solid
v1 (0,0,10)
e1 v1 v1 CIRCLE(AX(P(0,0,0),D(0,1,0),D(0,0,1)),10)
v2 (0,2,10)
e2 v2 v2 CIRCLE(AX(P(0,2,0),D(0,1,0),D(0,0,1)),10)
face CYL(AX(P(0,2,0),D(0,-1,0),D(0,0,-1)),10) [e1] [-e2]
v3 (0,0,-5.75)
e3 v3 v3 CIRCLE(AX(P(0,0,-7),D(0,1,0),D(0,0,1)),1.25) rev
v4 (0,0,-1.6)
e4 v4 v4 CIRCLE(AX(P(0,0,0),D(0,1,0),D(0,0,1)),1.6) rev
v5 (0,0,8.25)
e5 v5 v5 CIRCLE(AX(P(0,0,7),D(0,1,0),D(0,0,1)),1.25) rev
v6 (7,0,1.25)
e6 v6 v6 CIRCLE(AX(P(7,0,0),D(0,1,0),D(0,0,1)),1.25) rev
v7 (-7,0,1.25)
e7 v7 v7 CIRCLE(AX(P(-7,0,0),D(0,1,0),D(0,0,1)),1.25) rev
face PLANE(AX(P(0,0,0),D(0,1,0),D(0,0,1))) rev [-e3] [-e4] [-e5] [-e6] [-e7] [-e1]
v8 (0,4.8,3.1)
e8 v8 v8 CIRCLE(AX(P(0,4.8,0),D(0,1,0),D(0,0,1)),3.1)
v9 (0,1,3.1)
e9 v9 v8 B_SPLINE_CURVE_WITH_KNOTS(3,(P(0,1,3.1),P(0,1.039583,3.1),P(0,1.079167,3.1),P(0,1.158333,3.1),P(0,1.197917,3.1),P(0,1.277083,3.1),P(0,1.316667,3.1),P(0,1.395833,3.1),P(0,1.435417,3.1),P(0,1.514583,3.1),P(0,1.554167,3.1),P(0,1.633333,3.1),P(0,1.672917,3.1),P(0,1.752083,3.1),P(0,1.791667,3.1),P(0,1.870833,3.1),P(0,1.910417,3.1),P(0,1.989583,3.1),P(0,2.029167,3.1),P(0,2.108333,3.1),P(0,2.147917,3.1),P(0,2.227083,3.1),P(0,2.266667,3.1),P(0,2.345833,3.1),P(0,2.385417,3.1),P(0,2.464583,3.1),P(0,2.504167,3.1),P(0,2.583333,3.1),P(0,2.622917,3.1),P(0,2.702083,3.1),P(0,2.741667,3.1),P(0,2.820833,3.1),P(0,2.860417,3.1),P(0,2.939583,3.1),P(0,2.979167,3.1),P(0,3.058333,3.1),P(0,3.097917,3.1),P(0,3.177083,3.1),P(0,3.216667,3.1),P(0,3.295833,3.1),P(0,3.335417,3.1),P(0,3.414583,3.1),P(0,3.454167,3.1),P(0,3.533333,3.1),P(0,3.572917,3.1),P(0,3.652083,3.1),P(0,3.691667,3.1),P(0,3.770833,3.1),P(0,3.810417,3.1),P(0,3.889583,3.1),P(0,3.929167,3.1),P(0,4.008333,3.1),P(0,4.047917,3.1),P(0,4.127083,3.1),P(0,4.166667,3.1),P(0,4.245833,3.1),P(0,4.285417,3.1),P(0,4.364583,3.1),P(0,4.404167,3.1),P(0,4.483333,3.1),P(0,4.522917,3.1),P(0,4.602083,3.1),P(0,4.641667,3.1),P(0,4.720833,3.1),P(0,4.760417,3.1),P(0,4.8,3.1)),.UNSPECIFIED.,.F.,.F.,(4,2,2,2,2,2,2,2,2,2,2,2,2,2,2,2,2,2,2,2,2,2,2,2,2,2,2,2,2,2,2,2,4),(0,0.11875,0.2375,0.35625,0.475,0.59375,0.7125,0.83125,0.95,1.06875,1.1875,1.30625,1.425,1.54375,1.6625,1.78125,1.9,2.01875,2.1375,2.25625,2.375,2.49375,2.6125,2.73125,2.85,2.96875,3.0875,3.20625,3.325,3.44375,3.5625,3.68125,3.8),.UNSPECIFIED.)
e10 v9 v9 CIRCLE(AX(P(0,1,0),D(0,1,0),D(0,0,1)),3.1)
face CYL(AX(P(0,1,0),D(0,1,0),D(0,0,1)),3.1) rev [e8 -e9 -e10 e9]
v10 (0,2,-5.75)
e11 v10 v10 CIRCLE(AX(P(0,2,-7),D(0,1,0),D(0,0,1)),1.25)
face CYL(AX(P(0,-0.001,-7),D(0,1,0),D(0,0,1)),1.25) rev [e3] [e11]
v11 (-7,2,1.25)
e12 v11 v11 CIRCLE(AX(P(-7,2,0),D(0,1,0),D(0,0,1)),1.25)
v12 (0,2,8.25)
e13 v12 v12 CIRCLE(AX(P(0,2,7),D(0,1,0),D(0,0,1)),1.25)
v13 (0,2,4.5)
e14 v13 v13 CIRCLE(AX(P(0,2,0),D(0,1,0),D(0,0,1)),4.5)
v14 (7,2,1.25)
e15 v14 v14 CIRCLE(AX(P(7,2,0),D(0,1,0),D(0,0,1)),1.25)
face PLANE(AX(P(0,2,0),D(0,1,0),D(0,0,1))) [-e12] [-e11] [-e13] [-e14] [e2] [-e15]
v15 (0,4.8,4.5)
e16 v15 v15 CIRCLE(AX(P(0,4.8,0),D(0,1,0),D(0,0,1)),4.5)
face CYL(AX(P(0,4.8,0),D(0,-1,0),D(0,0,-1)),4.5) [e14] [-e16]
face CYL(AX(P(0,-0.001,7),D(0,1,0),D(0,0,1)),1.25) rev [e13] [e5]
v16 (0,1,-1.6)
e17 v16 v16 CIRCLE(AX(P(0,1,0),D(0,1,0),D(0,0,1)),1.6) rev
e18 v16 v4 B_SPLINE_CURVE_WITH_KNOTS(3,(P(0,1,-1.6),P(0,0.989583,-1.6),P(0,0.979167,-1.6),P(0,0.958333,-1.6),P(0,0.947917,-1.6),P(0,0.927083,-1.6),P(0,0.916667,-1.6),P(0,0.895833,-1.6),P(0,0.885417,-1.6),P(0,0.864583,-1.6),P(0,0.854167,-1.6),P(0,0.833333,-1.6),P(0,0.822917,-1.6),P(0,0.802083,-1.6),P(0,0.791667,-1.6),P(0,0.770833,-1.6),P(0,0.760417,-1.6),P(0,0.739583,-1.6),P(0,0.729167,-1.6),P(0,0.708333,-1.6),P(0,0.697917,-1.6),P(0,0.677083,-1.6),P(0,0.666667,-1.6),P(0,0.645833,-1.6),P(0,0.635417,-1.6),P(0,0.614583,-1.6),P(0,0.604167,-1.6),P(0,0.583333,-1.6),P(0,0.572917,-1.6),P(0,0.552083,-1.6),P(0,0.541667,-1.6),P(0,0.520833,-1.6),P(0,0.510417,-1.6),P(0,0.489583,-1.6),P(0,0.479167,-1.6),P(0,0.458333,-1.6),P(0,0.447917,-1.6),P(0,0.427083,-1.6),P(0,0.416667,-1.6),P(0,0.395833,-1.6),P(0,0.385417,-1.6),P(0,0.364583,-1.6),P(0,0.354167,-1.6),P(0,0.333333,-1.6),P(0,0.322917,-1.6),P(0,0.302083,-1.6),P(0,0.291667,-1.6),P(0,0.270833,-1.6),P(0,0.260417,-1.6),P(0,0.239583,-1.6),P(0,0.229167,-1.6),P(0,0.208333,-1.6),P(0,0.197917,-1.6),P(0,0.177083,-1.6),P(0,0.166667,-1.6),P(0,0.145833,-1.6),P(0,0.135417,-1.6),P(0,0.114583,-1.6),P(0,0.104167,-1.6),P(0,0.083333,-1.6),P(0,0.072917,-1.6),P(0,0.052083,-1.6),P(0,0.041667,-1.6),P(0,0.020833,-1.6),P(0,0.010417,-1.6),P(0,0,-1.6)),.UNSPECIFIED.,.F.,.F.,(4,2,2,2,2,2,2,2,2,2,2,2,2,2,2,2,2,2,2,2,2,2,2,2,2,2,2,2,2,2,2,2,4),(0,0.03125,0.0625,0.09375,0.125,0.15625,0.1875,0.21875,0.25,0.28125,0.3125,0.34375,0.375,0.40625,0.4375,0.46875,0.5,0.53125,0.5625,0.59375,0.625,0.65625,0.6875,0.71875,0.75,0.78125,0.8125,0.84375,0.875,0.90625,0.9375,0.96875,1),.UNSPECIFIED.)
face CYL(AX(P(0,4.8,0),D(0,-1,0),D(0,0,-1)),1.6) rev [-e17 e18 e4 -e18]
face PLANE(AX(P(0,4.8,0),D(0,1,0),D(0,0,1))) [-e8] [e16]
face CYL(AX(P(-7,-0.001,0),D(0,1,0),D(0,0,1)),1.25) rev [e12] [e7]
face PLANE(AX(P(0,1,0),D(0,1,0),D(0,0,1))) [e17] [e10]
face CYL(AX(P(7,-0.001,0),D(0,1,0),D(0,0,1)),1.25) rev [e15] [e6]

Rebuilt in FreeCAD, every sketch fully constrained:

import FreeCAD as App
import Part
import Sketcher
from FreeCAD import Vector

doc = App.newDocument("Part")
params = doc.addObject("Spreadsheet::Sheet", "Params")
for row, (alias, value) in enumerate([
    ("sketch1_diameter", "20 mm"),
    ("pad1_length", "2 mm"),
    ("sketch2_diameter", "9 mm"),
    ("pad2_length", "2.8 mm"),
    ("sketch3_diameter", "6.2 mm"),
    ("pocket1_length", "3.8 mm"),
    ("sketch4_diameter", "3.2 mm"),
    ("sketch5_diameter", "3.2 mm"),
    ("pocket3_length", "15.64377 mm"),
    ("sketch6_diameter", "2.5 mm"),
    ("sketch7_diameter", "2.5 mm"),
    ("sketch8_diameter", "2.5 mm"),
    ("sketch9_diameter", "2.5 mm"),
], start=1):
    params.set(f"A{row}", alias)
    params.set(f"B{row}", "=" + value)
    params.setAlias(f"B{row}", alias)

body = doc.addObject("PartDesign::Body", "Body")

# Sketch on XZ plane
sketch1 = doc.addObject("Sketcher::SketchObject", "Sketch")
body.addObject(sketch1)
sketch1.AttachmentSupport = (doc.XZ_Plane, [""])
sketch1.MapMode = "FlatFace"
sketch1.addGeometry(Part.Circle(Vector(0, 0, 0), Vector(0, 0, 1), 10), False)
sketch1.addConstraint(Sketcher.Constraint("Coincident", 0, 3, -1, 1))
sketch1.addConstraint(Sketcher.Constraint("Diameter", 0, 20.0))
sketch1.setExpression("Constraints[1]", "Params.sketch1_diameter")
pad1 = doc.addObject("PartDesign::Pad", "Pad")
body.addObject(pad1)
pad1.Profile = sketch1
pad1.setExpression("Length", "Params.pad1_length")
pad1.Reversed = True

# Sketch on XZ plane
sketch2 = doc.addObject("Sketcher::SketchObject", "Sketch001")
body.addObject(sketch2)
sketch2.AttachmentSupport = (doc.XZ_Plane, [""])
sketch2.MapMode = "FlatFace"
sketch2.AttachmentOffset = App.Placement(Vector(0, 0, -2), App.Rotation())
sketch2.addGeometry(Part.Circle(Vector(0, 0, 0), Vector(0, 0, 1), 4.5), False)
sketch2.addConstraint(Sketcher.Constraint("Coincident", 0, 3, -1, 1))
sketch2.addConstraint(Sketcher.Constraint("Diameter", 0, 9.0))
sketch2.setExpression("Constraints[1]", "Params.sketch2_diameter")
pad2 = doc.addObject("PartDesign::Pad", "Pad001")
body.addObject(pad2)
pad2.Profile = sketch2
pad2.setExpression("Length", "Params.pad2_length")
pad2.Reversed = True

# Sketch on XZ plane
sketch3 = doc.addObject("Sketcher::SketchObject", "Sketch002")
body.addObject(sketch3)
sketch3.AttachmentSupport = (doc.XZ_Plane, [""])
sketch3.MapMode = "FlatFace"
sketch3.AttachmentOffset = App.Placement(Vector(0, 0, -4.8), App.Rotation())
sketch3.addGeometry(Part.Circle(Vector(0, 0, 0), Vector(0, 0, 1), 3.1), False)
sketch3.addConstraint(Sketcher.Constraint("Coincident", 0, 3, -1, 1))
sketch3.addConstraint(Sketcher.Constraint("Diameter", 0, 6.2))
sketch3.setExpression("Constraints[1]", "Params.sketch3_diameter")
pocket1 = doc.addObject("PartDesign::Pocket", "Pocket")
body.addObject(pocket1)
pocket1.Profile = sketch3
pocket1.setExpression("Length", "Params.pocket1_length")
pocket1.Reversed = True

# Sketch on XZ plane
sketch4 = doc.addObject("Sketcher::SketchObject", "Sketch003")
body.addObject(sketch4)
sketch4.AttachmentSupport = (doc.XZ_Plane, [""])
sketch4.MapMode = "FlatFace"
sketch4.AttachmentOffset = App.Placement(Vector(0, 0, -1), App.Rotation())
sketch4.addGeometry(Part.Circle(Vector(0, 0, 0), Vector(0, 0, 1), 1.6), False)
sketch4.addConstraint(Sketcher.Constraint("Coincident", 0, 3, -1, 1))
sketch4.addConstraint(Sketcher.Constraint("Diameter", 0, 3.2))
sketch4.setExpression("Constraints[1]", "Params.sketch4_diameter")
pocket2 = doc.addObject("PartDesign::Pocket", "Pocket001")
body.addObject(pocket2)
pocket2.Profile = sketch4
pocket2.Type = "UpToFirst"
pocket2.Reversed = True

# Sketch on XZ plane
sketch5 = doc.addObject("Sketcher::SketchObject", "Sketch004")
body.addObject(sketch5)
sketch5.AttachmentSupport = (doc.XZ_Plane, [""])
sketch5.MapMode = "FlatFace"
sketch5.AttachmentOffset = App.Placement(Vector(0, 0, -1), App.Rotation())
sketch5.addGeometry(Part.Circle(Vector(0, 0, 0), Vector(0, 0, 1), 1.6), False)
sketch5.addConstraint(Sketcher.Constraint("Coincident", 0, 3, -1, 1))
sketch5.addConstraint(Sketcher.Constraint("Diameter", 0, 3.2))
sketch5.setExpression("Constraints[1]", "Params.sketch5_diameter")
pocket3 = doc.addObject("PartDesign::Pocket", "Pocket002")
body.addObject(pocket3)
pocket3.Profile = sketch5
pocket3.setExpression("Length", "Params.pocket3_length")

# Sketch on XZ plane
sketch6 = doc.addObject("Sketcher::SketchObject", "Sketch005")
body.addObject(sketch6)
sketch6.AttachmentSupport = (doc.XZ_Plane, [""])
sketch6.MapMode = "FlatFace"
sketch6.AttachmentOffset = App.Placement(Vector(0, 0, -2), App.Rotation())
sketch6.addGeometry(Part.Circle(Vector(-7, 0, 0), Vector(0, 0, 1), 1.2), False)
sketch6.addConstraint(Sketcher.Constraint("PointOnObject", 0, 3, -1))
sketch6.addConstraint(Sketcher.Constraint("Diameter", 0, 2.5))
sketch6.addConstraint(Sketcher.Constraint("DistanceX", 0, 3, -1, 1, 7.0))
sketch6.setExpression("Constraints[1]", "Params.sketch6_diameter")
pocket4 = doc.addObject("PartDesign::Pocket", "Pocket003")
body.addObject(pocket4)
pocket4.Profile = sketch6
pocket4.Type = "UpToFirst"
pocket4.Reversed = True

# Sketch on XZ plane
sketch7 = doc.addObject("Sketcher::SketchObject", "Sketch006")
body.addObject(sketch7)
sketch7.AttachmentSupport = (doc.XZ_Plane, [""])
sketch7.MapMode = "FlatFace"
sketch7.AttachmentOffset = App.Placement(Vector(0, 0, -2), App.Rotation())
sketch7.addGeometry(Part.Circle(Vector(0, -7, 0), Vector(0, 0, 1), 1.2), False)
sketch7.addConstraint(Sketcher.Constraint("PointOnObject", 0, 3, -2))
sketch7.addConstraint(Sketcher.Constraint("Diameter", 0, 2.5))
sketch7.addConstraint(Sketcher.Constraint("DistanceY", 0, 3, -1, 1, 7.0))
sketch7.setExpression("Constraints[1]", "Params.sketch7_diameter")
pocket5 = doc.addObject("PartDesign::Pocket", "Pocket004")
body.addObject(pocket5)
pocket5.Profile = sketch7
pocket5.Type = "UpToFirst"
pocket5.Reversed = True

# Sketch on XZ plane
sketch8 = doc.addObject("Sketcher::SketchObject", "Sketch007")
body.addObject(sketch8)
sketch8.AttachmentSupport = (doc.XZ_Plane, [""])
sketch8.MapMode = "FlatFace"
sketch8.AttachmentOffset = App.Placement(Vector(0, 0, -2), App.Rotation())
sketch8.addGeometry(Part.Circle(Vector(7, 0, 0), Vector(0, 0, 1), 1.2), False)
sketch8.addConstraint(Sketcher.Constraint("PointOnObject", 0, 3, -1))
sketch8.addConstraint(Sketcher.Constraint("Diameter", 0, 2.5))
sketch8.addConstraint(Sketcher.Constraint("DistanceX", -1, 1, 0, 3, 7.0))
sketch8.setExpression("Constraints[1]", "Params.sketch8_diameter")
pocket6 = doc.addObject("PartDesign::Pocket", "Pocket005")
body.addObject(pocket6)
pocket6.Profile = sketch8
pocket6.Type = "UpToFirst"
pocket6.Reversed = True

# Sketch on XZ plane
sketch9 = doc.addObject("Sketcher::SketchObject", "Sketch008")
body.addObject(sketch9)
sketch9.AttachmentSupport = (doc.XZ_Plane, [""])
sketch9.MapMode = "FlatFace"
sketch9.AttachmentOffset = App.Placement(Vector(0, 0, -2), App.Rotation())
sketch9.addGeometry(Part.Circle(Vector(0, 7, 0), Vector(0, 0, 1), 1.2), False)
sketch9.addConstraint(Sketcher.Constraint("PointOnObject", 0, 3, -2))
sketch9.addConstraint(Sketcher.Constraint("Diameter", 0, 2.5))
sketch9.addConstraint(Sketcher.Constraint("DistanceY", -1, 1, 0, 3, 7.0))
sketch9.setExpression("Constraints[1]", "Params.sketch9_diameter")
pocket7 = doc.addObject("PartDesign::Pocket", "Pocket006")
body.addObject(pocket7)
pocket7.Profile = sketch9
pocket7.Type = "UpToFirst"
pocket7.Reversed = True

doc.recompute()
